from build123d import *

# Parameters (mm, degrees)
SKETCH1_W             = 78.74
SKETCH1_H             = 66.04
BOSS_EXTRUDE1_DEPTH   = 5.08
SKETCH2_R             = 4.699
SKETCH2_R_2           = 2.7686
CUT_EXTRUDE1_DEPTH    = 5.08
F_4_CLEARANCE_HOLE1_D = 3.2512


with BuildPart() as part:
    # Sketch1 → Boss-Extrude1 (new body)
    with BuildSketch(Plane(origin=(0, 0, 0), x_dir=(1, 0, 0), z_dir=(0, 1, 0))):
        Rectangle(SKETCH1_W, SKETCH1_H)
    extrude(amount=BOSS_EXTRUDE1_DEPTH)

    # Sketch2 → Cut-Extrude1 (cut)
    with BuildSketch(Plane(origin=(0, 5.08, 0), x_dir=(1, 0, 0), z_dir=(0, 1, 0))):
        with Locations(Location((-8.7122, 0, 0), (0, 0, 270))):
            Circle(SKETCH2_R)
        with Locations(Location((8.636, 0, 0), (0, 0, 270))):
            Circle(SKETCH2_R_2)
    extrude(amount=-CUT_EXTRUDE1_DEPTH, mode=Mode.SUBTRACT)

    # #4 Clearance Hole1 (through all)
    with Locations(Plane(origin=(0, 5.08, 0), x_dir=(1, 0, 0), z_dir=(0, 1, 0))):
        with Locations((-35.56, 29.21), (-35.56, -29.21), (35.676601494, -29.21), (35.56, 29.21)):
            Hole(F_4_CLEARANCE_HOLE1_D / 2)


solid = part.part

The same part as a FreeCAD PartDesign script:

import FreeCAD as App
import Part
import Sketcher
Q = App.Units.Quantity


def add_polygon(sketch, points):
    """Adds a closed chain of lines whose ends are joined by coincident constraints."""
    first, n = sketch.GeometryCount, len(points)
    for a, b in zip(points, points[1:] + points[:1]):
        sketch.addGeometry(Part.LineSegment(App.Vector(*a, 0), App.Vector(*b, 0)), False)
    for i in range(n):
        sketch.addConstraint(Sketcher.Constraint("Coincident", first + i, 2, first + (i + 1) % n, 1))

doc = App.newDocument("Part")
body = doc.addObject("PartDesign::Body", "Body")

# Sketch on XZ plane
sketch1 = body.newObject("Sketcher::SketchObject", "Sketch")
sketch1.AttachmentSupport = (doc.getObject("XZ_Plane"), [""])
sketch1.MapMode = "FlatFace"
add_polygon(sketch1, [(-39, -33), (-39, 33), (39, 33), (39, -33)])  # lines 0-3
sketch1.addConstraint(Sketcher.Constraint("Vertical", 0))
sketch1.addConstraint(Sketcher.Constraint("Horizontal", 1))
sketch1.addConstraint(Sketcher.Constraint("Vertical", 2))
sketch1.addConstraint(Sketcher.Constraint("Horizontal", 3))
sketch1.addConstraint(Sketcher.Constraint("Symmetric", 0, 2, 2, 2, -1, 1))
sketch1.addConstraint(Sketcher.Constraint("DistanceX", 1, 1, 1, 2, Q("3.1 in")))
sketch1.addConstraint(Sketcher.Constraint("DistanceY", 0, 1, 0, 2, Q("2.6 in")))
pad1 = body.newObject("PartDesign::Pad", "Pad")
pad1.Profile = sketch1
pad1.Length = Q("0.2 in")
pad1.Reversed = True

# Sketch on XZ plane
sketch2 = body.newObject("Sketcher::SketchObject", "Sketch001")
sketch2.AttachmentSupport = (doc.getObject("XZ_Plane"), [""])
sketch2.MapMode = "FlatFace"
sketch2.AttachmentOffset = App.Placement(App.Vector(0, 0, -0.2 * 25.4), App.Rotation())
sketch2.addGeometry(Part.Circle(App.Vector(-8.7, 0, 0), App.Vector(0, 0, 1), 4.7), False)
sketch2.addGeometry(Part.Circle(App.Vector(8.6, 0, 0), App.Vector(0, 0, 1), 2.8), False)
sketch2.addConstraint(Sketcher.Constraint("PointOnObject", 0, 3, -1))
sketch2.addConstraint(Sketcher.Constraint("PointOnObject", 1, 3, -1))
sketch2.addConstraint(Sketcher.Constraint("Diameter", 0, Q("0.37 in")))
sketch2.addConstraint(Sketcher.Constraint("Diameter", 1, Q("0.218 in")))
sketch2.addConstraint(Sketcher.Constraint("DistanceX", -1, 1, 1, 3, Q("0.34 in")))
sketch2.addConstraint(Sketcher.Constraint("DistanceX", 0, 3, -1, 1, Q("0.343 in")))
pocket1 = body.newObject("PartDesign::Pocket", "Pocket")
pocket1.Profile = sketch2
pocket1.Length = Q("0.2 in")
pocket1.Reversed = True

# Sketch on XZ plane
sketch3 = body.newObject("Sketcher::SketchObject", "Sketch002")
sketch3.AttachmentSupport = (doc.getObject("XZ_Plane"), [""])
sketch3.MapMode = "FlatFace"
sketch3.AttachmentOffset = App.Placement(App.Vector(0, 0, -0.2 * 25.4), App.Rotation())
sketch3.addGeometry(Part.Circle(App.Vector(-35.6, -29.2, 0), App.Vector(0, 0, 1), 1.6), False)
sketch3.addGeometry(Part.Circle(App.Vector(-35.6, 29.2, 0), App.Vector(0, 0, 1), 1.6), False)
sketch3.addGeometry(Part.Circle(App.Vector(35.7, 29.2, 0), App.Vector(0, 0, 1), 1.6), False)
sketch3.addGeometry(Part.Circle(App.Vector(35.6, -29.2, 0), App.Vector(0, 0, 1), 1.6), False)
sketch3.addConstraint(Sketcher.Constraint("Equal", 0, 1))
sketch3.addConstraint(Sketcher.Constraint("Equal", 1, 2))
sketch3.addConstraint(Sketcher.Constraint("Equal", 2, 3))
sketch3.addConstraint(Sketcher.Constraint("Symmetric", 1, 3, 3, 3, -1, 1))
sketch3.addConstraint(Sketcher.Constraint("Symmetric", 0, 3, 3, 3, -2))
sketch3.addConstraint(Sketcher.Constraint("Horizontal", 1, 3, 2, 3))
sketch3.addConstraint(Sketcher.Constraint("Diameter", 0, Q("0.128 in")))
sketch3.addConstraint(Sketcher.Constraint("DistanceX", 0, 3, -1, 1, Q("1.4 in")))
sketch3.addConstraint(Sketcher.Constraint("DistanceY", 0, 3, 1, 3, Q("2.3 in")))
sketch3.addConstraint(Sketcher.Constraint("DistanceX", -1, 1, 2, 3, 35.676601))
doc.recompute()
hole = body.newObject("PartDesign::Hole", "Hole")
hole.Profile = sketch3
hole.ThreadType = "None"
hole.Diameter = Q("0.128 in")
hole.DepthType = "ThroughAll"
hole.Reversed = True

doc.recompute()
